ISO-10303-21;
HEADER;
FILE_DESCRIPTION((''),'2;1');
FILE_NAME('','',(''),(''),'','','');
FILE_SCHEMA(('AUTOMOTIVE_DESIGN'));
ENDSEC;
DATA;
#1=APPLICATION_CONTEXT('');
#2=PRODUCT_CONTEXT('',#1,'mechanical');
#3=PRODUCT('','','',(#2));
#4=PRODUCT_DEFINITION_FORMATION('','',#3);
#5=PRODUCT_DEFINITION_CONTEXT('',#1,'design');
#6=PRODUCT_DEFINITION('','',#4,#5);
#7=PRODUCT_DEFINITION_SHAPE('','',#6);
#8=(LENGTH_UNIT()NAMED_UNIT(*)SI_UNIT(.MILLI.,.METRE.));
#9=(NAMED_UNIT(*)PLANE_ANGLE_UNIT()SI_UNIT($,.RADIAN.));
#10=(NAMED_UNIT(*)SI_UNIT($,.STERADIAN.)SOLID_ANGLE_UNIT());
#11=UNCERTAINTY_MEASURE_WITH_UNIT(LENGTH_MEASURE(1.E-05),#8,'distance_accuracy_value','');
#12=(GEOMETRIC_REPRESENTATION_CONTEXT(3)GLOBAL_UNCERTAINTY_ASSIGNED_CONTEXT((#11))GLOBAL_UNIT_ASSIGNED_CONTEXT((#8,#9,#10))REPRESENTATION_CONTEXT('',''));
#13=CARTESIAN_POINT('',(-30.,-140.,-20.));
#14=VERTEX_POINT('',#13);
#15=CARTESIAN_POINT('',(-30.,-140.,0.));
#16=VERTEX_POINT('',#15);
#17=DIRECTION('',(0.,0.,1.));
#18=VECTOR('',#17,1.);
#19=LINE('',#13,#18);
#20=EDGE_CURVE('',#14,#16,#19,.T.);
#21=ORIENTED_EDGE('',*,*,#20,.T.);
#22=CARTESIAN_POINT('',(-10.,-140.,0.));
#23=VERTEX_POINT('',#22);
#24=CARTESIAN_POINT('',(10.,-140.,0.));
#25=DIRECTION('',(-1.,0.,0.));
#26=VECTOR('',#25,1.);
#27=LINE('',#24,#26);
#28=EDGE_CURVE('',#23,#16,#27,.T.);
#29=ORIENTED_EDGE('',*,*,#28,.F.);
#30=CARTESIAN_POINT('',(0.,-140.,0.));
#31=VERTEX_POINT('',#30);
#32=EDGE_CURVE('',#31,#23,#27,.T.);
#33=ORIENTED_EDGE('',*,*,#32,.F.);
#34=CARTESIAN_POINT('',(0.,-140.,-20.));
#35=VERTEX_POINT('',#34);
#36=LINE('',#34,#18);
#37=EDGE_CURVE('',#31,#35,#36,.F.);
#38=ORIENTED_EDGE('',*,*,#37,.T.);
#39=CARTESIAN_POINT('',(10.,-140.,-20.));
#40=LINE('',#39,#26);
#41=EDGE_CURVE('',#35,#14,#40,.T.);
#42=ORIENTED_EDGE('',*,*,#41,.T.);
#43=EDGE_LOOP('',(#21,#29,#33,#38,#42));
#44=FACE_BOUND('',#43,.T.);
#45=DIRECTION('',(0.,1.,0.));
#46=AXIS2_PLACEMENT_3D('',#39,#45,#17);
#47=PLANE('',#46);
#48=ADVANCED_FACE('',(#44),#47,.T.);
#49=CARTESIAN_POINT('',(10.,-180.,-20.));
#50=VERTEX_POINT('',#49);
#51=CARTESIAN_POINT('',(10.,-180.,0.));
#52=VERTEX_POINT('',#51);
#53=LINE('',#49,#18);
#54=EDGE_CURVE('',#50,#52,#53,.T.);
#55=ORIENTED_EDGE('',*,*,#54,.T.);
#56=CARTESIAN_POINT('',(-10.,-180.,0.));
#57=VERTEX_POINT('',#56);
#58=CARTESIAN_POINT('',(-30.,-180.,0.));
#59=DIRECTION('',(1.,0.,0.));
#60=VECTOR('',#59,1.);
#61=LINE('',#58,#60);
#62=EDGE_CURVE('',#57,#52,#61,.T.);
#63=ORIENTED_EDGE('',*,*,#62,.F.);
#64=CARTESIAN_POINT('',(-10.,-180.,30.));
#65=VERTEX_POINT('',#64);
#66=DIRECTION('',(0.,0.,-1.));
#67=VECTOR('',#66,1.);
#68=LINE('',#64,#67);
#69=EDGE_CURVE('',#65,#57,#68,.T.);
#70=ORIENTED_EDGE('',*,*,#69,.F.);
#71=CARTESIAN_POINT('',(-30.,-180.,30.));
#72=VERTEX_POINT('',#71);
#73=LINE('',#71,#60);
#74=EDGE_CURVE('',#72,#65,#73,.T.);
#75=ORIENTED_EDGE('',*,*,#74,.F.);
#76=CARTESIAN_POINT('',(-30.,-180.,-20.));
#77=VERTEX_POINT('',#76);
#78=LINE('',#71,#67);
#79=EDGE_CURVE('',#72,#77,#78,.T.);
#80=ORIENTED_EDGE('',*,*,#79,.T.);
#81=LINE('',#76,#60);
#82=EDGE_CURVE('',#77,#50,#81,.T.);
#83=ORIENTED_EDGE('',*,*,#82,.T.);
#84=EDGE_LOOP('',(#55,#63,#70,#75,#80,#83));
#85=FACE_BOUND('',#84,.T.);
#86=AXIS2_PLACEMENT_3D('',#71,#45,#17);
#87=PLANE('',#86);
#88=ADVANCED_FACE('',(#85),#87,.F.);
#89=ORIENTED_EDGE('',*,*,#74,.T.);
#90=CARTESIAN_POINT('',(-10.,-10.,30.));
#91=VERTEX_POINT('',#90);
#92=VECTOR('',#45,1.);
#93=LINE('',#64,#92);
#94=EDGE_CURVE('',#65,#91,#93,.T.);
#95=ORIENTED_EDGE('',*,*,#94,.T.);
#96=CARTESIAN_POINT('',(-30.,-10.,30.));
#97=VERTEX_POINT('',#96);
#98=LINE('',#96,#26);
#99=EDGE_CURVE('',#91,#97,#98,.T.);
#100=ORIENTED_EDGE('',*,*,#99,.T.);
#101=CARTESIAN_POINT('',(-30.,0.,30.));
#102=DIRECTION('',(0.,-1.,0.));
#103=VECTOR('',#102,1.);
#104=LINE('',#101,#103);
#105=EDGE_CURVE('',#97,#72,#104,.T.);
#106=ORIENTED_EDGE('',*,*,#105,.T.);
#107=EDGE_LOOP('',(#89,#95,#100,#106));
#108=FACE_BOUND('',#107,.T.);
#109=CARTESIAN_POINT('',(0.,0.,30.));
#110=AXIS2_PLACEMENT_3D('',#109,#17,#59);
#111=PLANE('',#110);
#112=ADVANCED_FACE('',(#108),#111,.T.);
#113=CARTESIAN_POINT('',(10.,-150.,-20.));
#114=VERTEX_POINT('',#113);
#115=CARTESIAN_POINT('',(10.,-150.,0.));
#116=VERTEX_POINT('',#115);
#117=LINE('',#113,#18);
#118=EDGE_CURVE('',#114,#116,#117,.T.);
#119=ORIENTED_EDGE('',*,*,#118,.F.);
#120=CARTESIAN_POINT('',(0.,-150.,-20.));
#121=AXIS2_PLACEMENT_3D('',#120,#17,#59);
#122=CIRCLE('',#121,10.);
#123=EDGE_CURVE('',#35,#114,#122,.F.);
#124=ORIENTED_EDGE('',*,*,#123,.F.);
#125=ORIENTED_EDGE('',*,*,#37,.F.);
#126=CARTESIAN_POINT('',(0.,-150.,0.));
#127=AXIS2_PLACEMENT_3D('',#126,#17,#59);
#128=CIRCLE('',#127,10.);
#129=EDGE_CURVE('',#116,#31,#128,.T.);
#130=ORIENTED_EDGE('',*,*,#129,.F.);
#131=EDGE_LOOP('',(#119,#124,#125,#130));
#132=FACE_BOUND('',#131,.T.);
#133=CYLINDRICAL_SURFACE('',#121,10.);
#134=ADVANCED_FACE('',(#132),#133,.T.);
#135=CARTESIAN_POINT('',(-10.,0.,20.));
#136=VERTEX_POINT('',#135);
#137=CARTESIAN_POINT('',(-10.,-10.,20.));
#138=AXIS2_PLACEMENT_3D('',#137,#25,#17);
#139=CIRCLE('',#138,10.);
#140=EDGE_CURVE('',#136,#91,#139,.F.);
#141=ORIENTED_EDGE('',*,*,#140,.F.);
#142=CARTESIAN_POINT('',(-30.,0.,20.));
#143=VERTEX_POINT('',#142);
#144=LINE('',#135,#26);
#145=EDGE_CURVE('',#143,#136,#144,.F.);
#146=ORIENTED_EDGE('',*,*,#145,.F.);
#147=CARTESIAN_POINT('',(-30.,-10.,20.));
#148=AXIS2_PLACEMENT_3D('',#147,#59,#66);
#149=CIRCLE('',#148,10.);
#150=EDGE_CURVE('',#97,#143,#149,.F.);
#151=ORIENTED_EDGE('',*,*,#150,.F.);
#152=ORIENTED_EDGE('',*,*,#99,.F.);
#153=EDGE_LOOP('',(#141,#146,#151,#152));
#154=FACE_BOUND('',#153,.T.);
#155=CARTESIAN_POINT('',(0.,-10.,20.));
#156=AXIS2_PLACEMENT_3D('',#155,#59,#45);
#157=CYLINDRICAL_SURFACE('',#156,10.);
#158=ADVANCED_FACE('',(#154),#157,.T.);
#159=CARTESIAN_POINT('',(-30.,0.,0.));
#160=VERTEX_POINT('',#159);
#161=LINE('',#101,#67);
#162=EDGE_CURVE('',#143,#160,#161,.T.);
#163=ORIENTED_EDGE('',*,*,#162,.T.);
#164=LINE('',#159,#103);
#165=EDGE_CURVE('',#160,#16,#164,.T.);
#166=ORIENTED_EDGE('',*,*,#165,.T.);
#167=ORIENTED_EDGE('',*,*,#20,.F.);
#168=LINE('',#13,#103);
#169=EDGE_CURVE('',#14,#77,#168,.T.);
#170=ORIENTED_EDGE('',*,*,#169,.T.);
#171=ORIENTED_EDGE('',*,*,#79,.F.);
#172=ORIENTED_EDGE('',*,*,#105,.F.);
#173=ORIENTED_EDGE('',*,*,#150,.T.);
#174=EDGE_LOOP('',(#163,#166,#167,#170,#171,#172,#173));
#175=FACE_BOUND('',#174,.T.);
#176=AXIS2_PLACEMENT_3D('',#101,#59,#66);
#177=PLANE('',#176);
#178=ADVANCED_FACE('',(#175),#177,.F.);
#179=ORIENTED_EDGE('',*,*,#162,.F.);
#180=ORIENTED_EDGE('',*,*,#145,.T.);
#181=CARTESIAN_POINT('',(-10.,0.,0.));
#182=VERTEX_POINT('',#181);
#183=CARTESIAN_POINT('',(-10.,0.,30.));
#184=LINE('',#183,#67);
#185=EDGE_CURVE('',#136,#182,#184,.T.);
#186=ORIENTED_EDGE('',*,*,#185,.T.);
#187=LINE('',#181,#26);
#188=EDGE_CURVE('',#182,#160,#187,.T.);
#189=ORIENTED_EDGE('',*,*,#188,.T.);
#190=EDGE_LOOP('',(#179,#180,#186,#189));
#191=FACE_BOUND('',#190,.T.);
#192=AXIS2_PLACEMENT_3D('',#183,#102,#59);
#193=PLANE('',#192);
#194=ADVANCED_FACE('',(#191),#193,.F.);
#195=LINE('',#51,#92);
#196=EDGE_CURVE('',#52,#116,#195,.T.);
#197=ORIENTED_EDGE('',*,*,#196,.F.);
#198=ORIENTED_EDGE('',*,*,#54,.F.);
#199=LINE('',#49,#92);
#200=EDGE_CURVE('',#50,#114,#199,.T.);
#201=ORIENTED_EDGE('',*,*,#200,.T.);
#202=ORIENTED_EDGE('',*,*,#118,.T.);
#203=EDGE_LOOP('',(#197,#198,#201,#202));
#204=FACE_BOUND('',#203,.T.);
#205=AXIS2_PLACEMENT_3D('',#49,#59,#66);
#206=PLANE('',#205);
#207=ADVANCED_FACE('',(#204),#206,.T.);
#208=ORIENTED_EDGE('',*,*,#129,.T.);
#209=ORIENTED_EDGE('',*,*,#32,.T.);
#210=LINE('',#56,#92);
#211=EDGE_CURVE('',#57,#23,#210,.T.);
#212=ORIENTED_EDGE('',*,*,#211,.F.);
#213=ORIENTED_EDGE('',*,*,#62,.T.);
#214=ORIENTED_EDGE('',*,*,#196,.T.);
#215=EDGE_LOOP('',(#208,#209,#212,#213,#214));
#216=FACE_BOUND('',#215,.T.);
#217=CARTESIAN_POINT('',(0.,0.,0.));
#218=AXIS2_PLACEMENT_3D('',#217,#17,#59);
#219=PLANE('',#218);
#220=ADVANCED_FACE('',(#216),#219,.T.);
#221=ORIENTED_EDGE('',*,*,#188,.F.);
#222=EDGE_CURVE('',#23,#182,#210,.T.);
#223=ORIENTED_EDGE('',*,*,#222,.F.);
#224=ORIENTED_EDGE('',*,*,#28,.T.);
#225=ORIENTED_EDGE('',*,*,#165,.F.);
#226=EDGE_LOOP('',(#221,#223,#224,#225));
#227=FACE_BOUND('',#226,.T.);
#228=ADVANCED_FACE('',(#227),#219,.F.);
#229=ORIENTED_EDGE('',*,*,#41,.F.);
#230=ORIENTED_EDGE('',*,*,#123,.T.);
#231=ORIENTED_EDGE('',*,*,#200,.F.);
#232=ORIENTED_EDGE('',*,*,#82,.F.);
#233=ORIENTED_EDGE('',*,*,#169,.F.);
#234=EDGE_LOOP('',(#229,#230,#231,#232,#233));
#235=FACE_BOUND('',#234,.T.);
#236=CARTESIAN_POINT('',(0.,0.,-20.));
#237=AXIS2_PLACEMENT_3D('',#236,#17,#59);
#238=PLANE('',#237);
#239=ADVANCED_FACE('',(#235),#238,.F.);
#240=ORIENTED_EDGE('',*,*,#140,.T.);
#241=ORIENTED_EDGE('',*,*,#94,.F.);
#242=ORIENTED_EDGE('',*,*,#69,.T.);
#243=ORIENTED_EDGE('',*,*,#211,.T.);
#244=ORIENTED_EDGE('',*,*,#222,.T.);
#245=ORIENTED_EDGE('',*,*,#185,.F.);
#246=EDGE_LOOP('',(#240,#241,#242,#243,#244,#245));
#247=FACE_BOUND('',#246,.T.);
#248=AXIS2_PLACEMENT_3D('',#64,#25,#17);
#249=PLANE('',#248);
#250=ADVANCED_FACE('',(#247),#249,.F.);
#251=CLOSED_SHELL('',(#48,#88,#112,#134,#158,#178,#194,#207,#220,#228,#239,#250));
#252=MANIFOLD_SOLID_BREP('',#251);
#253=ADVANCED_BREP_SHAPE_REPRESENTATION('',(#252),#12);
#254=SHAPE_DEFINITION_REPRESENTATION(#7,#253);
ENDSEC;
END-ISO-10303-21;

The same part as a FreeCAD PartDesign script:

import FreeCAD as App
import Part
import Sketcher
from FreeCAD import Vector
Q = App.Units.Quantity


def edges_at(feature, points):
    """Names of the edges that pass closest to the given points."""
    edges = feature.Shape.Edges
    near = lambda p: min(range(len(edges)), key=lambda i: edges[i].distToShape(Part.Vertex(*p))[0])
    return sorted({f"Edge{near(p) + 1}" for p in points})


def add_polygon(sketch, points):
    """Adds a closed chain of lines whose ends are joined by coincident constraints."""
    first, n = sketch.GeometryCount, len(points)
    for a, b in zip(points, points[1:] + points[:1]):
        sketch.addGeometry(Part.LineSegment(App.Vector(*a, 0), App.Vector(*b, 0)), False)
    for i in range(n):
        sketch.addConstraint(Sketcher.Constraint("Coincident", first + i, 2, first + (i + 1) % n, 1))

doc = App.newDocument("Part")
body = doc.addObject("PartDesign::Body", "Body")

sketch1 = body.newObject("Sketcher::SketchObject", "Sketch")
sketch1.AttachmentSupport = (doc.getObject("XY_Plane"), [""])
sketch1.MapMode = "FlatFace"
add_polygon(sketch1, [(-30, 0), (-30, -180), (-10, -180), (-10, 0)])
sketch1.addConstraint([
    Sketcher.Constraint("Vertical", 0),
    Sketcher.Constraint("Horizontal", 1),
    Sketcher.Constraint("Vertical", 2),
    Sketcher.Constraint("Horizontal", 3),
    Sketcher.Constraint("PointOnObject", 2, 2, -1),
    Sketcher.Constraint("DistanceX", 1, 1, 1, 2, Q("20 mm")),
    Sketcher.Constraint("DistanceY", 0, 2, 0, 1, Q("180 mm")),
    Sketcher.Constraint("DistanceX", 0, 2, -1, 1, Q("30 mm")),
])
pad1 = body.newObject("PartDesign::Pad", "Pad")
pad1.Profile = sketch1
pad1.Length = 30

sketch2 = body.newObject("Sketcher::SketchObject", "Sketch001")
sketch2.AttachmentSupport = (doc.getObject("XY_Plane"), [""])
sketch2.MapMode = "FlatFace"
add_polygon(sketch2, [(-30, -140), (-30, -180), (10, -180), (10, -140)])
sketch2.addConstraint([
    Sketcher.Constraint("Vertical", 0),
    Sketcher.Constraint("Horizontal", 1),
    Sketcher.Constraint("Vertical", 2),
    Sketcher.Constraint("Horizontal", 3),
    Sketcher.Constraint("Equal", 3, 0),
    Sketcher.Constraint("DistanceX", 1, 1, 1, 2, Q("40 mm")),
    Sketcher.Constraint("DistanceX", 0, 2, -1, 1, Q("30 mm")),
    Sketcher.Constraint("DistanceY", 0, 2, -1, 1, Q("180 mm")),
])
pad2 = body.newObject("PartDesign::Pad", "Pad001")
pad2.Profile = sketch2
pad2.Length = 20
pad2.Reversed = True
doc.recompute()

fillet = body.newObject("PartDesign::Fillet", "Fillet")
fillet.Base = (pad2, edges_at(pad2, [(10, -140, -10), (-20, 0, 30)]))
fillet.Radius = 10

doc.recompute()
